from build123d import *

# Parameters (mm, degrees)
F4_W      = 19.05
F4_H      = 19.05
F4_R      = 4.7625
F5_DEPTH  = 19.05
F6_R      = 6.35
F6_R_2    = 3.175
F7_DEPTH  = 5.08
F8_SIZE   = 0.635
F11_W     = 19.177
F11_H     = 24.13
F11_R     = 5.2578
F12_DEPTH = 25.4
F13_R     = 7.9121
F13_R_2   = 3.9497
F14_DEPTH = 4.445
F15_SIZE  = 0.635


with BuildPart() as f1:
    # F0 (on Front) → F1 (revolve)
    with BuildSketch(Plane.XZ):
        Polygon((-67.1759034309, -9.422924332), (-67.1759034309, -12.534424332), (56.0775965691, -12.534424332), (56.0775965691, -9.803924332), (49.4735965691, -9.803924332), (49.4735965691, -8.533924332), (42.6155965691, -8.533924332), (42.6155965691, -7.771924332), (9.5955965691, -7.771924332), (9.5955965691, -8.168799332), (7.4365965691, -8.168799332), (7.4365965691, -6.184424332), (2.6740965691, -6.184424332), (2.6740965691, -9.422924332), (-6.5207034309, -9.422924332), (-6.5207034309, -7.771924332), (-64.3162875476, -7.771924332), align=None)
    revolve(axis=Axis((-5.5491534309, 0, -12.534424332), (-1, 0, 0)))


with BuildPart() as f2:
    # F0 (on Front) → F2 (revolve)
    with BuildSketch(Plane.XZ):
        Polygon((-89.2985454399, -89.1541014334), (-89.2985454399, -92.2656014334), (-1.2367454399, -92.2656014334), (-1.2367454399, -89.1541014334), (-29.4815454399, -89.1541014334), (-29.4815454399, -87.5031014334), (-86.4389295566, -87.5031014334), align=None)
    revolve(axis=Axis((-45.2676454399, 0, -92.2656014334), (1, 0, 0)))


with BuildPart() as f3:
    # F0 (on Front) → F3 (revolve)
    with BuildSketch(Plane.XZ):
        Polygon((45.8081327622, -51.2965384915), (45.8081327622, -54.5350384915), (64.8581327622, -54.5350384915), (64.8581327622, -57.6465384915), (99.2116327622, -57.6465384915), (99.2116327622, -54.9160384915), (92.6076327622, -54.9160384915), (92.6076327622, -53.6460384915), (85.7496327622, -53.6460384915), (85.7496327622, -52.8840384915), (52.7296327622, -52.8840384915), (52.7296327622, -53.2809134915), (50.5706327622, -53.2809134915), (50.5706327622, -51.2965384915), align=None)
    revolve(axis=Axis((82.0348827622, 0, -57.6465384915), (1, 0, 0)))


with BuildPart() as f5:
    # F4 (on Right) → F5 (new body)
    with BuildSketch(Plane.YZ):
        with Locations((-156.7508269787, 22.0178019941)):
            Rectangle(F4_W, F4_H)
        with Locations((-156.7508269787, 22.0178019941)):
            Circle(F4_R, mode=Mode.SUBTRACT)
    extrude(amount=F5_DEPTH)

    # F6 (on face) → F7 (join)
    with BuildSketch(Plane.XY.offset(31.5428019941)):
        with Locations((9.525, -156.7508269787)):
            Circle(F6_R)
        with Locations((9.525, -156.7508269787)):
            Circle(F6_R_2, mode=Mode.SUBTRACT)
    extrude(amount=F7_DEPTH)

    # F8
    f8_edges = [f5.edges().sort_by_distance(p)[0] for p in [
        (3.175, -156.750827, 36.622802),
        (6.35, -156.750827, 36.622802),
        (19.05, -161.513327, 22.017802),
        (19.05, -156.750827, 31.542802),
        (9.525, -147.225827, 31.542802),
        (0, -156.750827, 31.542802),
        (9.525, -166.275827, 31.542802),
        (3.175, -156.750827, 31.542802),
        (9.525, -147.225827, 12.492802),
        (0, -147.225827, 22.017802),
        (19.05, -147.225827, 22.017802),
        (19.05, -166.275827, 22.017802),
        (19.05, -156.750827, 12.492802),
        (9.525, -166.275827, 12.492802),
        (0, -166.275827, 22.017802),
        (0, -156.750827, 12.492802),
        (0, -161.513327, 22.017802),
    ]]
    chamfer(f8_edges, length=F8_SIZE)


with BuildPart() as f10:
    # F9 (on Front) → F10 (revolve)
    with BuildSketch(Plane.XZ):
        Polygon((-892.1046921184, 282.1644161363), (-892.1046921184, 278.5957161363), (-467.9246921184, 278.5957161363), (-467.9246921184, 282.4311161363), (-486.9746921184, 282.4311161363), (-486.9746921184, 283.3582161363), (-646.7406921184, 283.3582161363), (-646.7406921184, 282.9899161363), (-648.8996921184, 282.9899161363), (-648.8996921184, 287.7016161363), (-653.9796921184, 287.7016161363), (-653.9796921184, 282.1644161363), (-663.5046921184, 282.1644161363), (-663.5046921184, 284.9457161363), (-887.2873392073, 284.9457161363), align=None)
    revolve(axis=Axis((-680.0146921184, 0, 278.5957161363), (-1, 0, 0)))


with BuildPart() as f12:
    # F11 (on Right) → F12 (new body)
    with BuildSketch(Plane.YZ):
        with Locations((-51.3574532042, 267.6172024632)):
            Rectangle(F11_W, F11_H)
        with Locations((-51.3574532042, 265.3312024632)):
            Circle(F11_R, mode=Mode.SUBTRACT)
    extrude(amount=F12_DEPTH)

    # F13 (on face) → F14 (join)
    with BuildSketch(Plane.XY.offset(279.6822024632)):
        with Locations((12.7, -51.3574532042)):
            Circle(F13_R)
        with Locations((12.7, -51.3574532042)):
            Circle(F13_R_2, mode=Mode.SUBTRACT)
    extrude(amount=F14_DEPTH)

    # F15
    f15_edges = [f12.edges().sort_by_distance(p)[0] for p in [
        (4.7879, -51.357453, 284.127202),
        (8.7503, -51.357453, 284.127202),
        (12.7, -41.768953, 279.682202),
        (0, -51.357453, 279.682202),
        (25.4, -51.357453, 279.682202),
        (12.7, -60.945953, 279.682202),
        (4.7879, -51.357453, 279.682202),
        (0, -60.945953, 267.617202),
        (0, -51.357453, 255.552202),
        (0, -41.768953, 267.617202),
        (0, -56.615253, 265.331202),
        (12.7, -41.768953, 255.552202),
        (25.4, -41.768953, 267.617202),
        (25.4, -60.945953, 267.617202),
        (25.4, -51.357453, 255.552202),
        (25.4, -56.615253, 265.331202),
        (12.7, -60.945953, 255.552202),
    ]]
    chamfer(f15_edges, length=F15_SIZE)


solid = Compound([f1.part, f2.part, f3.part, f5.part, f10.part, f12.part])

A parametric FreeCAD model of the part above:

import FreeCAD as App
import Part
import Sketcher
Q = App.Units.Quantity


def edges_at(feature, points):
    """Names of the edges that pass closest to the given points."""
    edges = feature.Shape.Edges
    near = lambda p: min(range(len(edges)), key=lambda i: edges[i].distToShape(Part.Vertex(*p))[0])
    return sorted({f"Edge{near(p) + 1}" for p in points})


def add_polygon(sketch, points):
    """Adds a closed chain of lines whose ends are joined by coincident constraints."""
    first, n = sketch.GeometryCount, len(points)
    for a, b in zip(points, points[1:] + points[:1]):
        sketch.addGeometry(Part.LineSegment(App.Vector(*a, 0), App.Vector(*b, 0)), False)
    for i in range(n):
        sketch.addConstraint(Sketcher.Constraint("Coincident", first + i, 2, first + (i + 1) % n, 1))

doc = App.newDocument("Part")
body = doc.addObject("PartDesign::Body", "Body")

sketch1 = body.newObject("Sketcher::SketchObject", "Sketch")
sketch1.AttachmentSupport = (doc.getObject("XZ_Plane"), [""])
sketch1.MapMode = "FlatFace"
add_polygon(sketch1, [(-67.18, -9.42), (-67.18, -12.53), (56.08, -12.53), (56.08, -9.8), (49.47, -9.8), (49.47, -8.53), (42.62, -8.53), (42.62, -7.77), (9.6, -7.77), (9.6, -8.17), (7.44, -8.17), (7.44, -6.18), (2.67, -6.18), (2.67, -9.42), (-6.52, -9.42), (-6.52, -7.77), (-64.32, -7.77)])
sketch1.addGeometry(Part.LineSegment(App.Vector(56.08, -12.53, 0), App.Vector(-67.18, -12.53, 0)), True)
sketch1.addConstraint(Sketcher.Constraint("Vertical", 0))
sketch1.addConstraint(Sketcher.Constraint("Horizontal", 1))
sketch1.addConstraint(Sketcher.Constraint("Vertical", 2))
sketch1.addConstraint(Sketcher.Constraint("Horizontal", 3))
sketch1.addConstraint(Sketcher.Constraint("Vertical", 4))
sketch1.addConstraint(Sketcher.Constraint("Horizontal", 5))
sketch1.addConstraint(Sketcher.Constraint("Vertical", 6))
sketch1.addConstraint(Sketcher.Constraint("Horizontal", 7))
sketch1.addConstraint(Sketcher.Constraint("Vertical", 8))
sketch1.addConstraint(Sketcher.Constraint("Horizontal", 9))
sketch1.addConstraint(Sketcher.Constraint("Vertical", 10))
sketch1.addConstraint(Sketcher.Constraint("Horizontal", 11))
sketch1.addConstraint(Sketcher.Constraint("Vertical", 12))
sketch1.addConstraint(Sketcher.Constraint("Horizontal", 13))
sketch1.addConstraint(Sketcher.Constraint("Vertical", 14))
sketch1.addConstraint(Sketcher.Constraint("Horizontal", 15))
sketch1.addConstraint(Sketcher.Constraint("Horizontal", 17))
sketch1.addConstraint(Sketcher.Constraint("Coincident", 17, 1, 1, 2))
sketch1.addConstraint(Sketcher.Constraint("Horizontal", 7, 2, 14, 2))
sketch1.addConstraint(Sketcher.Constraint("Horizontal", 13, 2, 16, 2))
sketch1.addConstraint(Sketcher.Constraint("Vertical", 16, 2, 17, 2))
sketch1.addConstraint(Sketcher.Constraint("DistanceX", 7, 2, 7, 1, Q("1.3 in")))
sketch1.addConstraint(Sketcher.Constraint("Angle", 16, Q("-150 deg")))
sketch1.addConstraint(Sketcher.Constraint("DistanceX", 3, 2, 3, 1, Q("0.26 in")))
sketch1.addConstraint(Sketcher.Constraint("DistanceX", 5, 2, 5, 1, Q("0.27 in")))
sketch1.addConstraint(Sketcher.Constraint("DistanceY", 4, 1, 4, 2, Q("0.05 in")))
sketch1.addConstraint(Sketcher.Constraint("DistanceY", 6, 1, 6, 2, Q("0.03 in")))
sketch1.addConstraint(Sketcher.Constraint("Distance", 16, Q("0.13 in")))
sketch1.addConstraint(Sketcher.Constraint("DistanceX", 9, 2, 9, 1, Q("0.085 in")))
sketch1.addConstraint(Sketcher.Constraint("DistanceX", 11, 2, 11, 1, Q("0.1875 in")))
sketch1.addConstraint(Sketcher.Constraint("DistanceX", 13, 2, 13, 1, Q("0.362 in")))
sketch1.addConstraint(Sketcher.Constraint("DistanceY", 8, 2, 8, 1, Q("0.015625 in")))
sketch1.addConstraint(Sketcher.Constraint("DistanceY", 10, 1, 10, 2, Q("0.078125 in")))
sketch1.addConstraint(Sketcher.Constraint("DistanceX", 16, 2, 12, 2, Q("2.75 in")))
sketch1.addConstraint(Sketcher.Constraint("DistanceY", 0, 2, 0, 1, Q("0.1225 in")))
sketch1.addConstraint(Sketcher.Constraint("DistanceY", 8, 2, -1, 1, Q("8.168799 mm")))
sketch1.addConstraint(Sketcher.Constraint("DistanceX", 0, 2, -1, 1, Q("67.175903 mm")))
revolution = body.newObject("PartDesign::Revolution", "Revolution")
revolution.Profile = sketch1
revolution.ReferenceAxis = (sketch1, ["Axis0"])
revolution.Angle = 360
body2 = doc.addObject("PartDesign::Body", "Body001")

sketch2 = body2.newObject("Sketcher::SketchObject", "Sketch001")
sketch2.AttachmentSupport = (doc.getObject("XZ_Plane001"), [""])
sketch2.MapMode = "FlatFace"
add_polygon(sketch2, [(-89.3, -89.2), (-89.3, -92.3), (-1.2, -92.3), (-1.2, -89.2), (-29.5, -89.2), (-29.5, -87.5), (-86.4, -87.5)])
sketch2.addGeometry(Part.LineSegment(App.Vector(-89.3, -92.3, 0), App.Vector(-1.2, -92.3, 0)), True)
sketch2.addConstraint(Sketcher.Constraint("Vertical", 0))
sketch2.addConstraint(Sketcher.Constraint("Horizontal", 1))
sketch2.addConstraint(Sketcher.Constraint("Vertical", 2))
sketch2.addConstraint(Sketcher.Constraint("Horizontal", 3))
sketch2.addConstraint(Sketcher.Constraint("Vertical", 4))
sketch2.addConstraint(Sketcher.Constraint("Horizontal", 5))
sketch2.addConstraint(Sketcher.Constraint("Horizontal", 7))
sketch2.addConstraint(Sketcher.Constraint("Coincident", 7, 1, 0, 2))
sketch2.addConstraint(Sketcher.Constraint("Horizontal", 3, 2, 6, 2))
sketch2.addConstraint(Sketcher.Constraint("Vertical", 2, 2, 7, 2))
sketch2.addConstraint(Sketcher.Constraint("Angle", 6, Q("-150 deg")))
sketch2.addConstraint(Sketcher.Constraint("Distance", 6, Q("0.13 in")))
sketch2.addConstraint(Sketcher.Constraint("DistanceX", 1, 1, 1, 2, Q("3.467 in")))
sketch2.addConstraint(Sketcher.Constraint("DistanceX", 3, 2, 3, 1, Q("1.112 in")))
sketch2.addConstraint(Sketcher.Constraint("DistanceY", 0, 2, 0, 1, Q("0.1225 in")))
sketch2.addConstraint(Sketcher.Constraint("DistanceY", 0, 2, -1, 1, Q("92.265601 mm")))
sketch2.addConstraint(Sketcher.Constraint("DistanceX", 5, 2, -1, 1, Q("86.43893 mm")))
revolution2 = body2.newObject("PartDesign::Revolution", "Revolution001")
revolution2.Profile = sketch2
revolution2.ReferenceAxis = (sketch2, ["Axis0"])
revolution2.Angle = 360
body3 = doc.addObject("PartDesign::Body", "Body002")

sketch3 = body3.newObject("Sketcher::SketchObject", "Sketch002")
sketch3.AttachmentSupport = (doc.getObject("XZ_Plane002"), [""])
sketch3.MapMode = "FlatFace"
add_polygon(sketch3, [(45.81, -51.3), (45.81, -54.54), (64.86, -54.54), (64.86, -57.65), (99.21, -57.65), (99.21, -54.92), (92.61, -54.92), (92.61, -53.65), (85.75, -53.65), (85.75, -52.88), (52.73, -52.88), (52.73, -53.28), (50.57, -53.28), (50.57, -51.3)])
sketch3.addGeometry(Part.LineSegment(App.Vector(45.81, -57.65, 0), App.Vector(99.21, -57.65, 0)), True)
sketch3.addConstraint(Sketcher.Constraint("Vertical", 0))
sketch3.addConstraint(Sketcher.Constraint("Horizontal", 1))
sketch3.addConstraint(Sketcher.Constraint("Vertical", 2))
sketch3.addConstraint(Sketcher.Constraint("Horizontal", 3))
sketch3.addConstraint(Sketcher.Constraint("Vertical", 4))
sketch3.addConstraint(Sketcher.Constraint("Horizontal", 5))
sketch3.addConstraint(Sketcher.Constraint("Vertical", 6))
sketch3.addConstraint(Sketcher.Constraint("Horizontal", 7))
sketch3.addConstraint(Sketcher.Constraint("Vertical", 8))
sketch3.addConstraint(Sketcher.Constraint("Horizontal", 9))
sketch3.addConstraint(Sketcher.Constraint("Vertical", 10))
sketch3.addConstraint(Sketcher.Constraint("Horizontal", 11))
sketch3.addConstraint(Sketcher.Constraint("Vertical", 12))
sketch3.addConstraint(Sketcher.Constraint("Horizontal", 13))
sketch3.addConstraint(Sketcher.Constraint("Horizontal", 14))
sketch3.addConstraint(Sketcher.Constraint("Coincident", 14, 2, 3, 2))
sketch3.addConstraint(Sketcher.Constraint("Vertical", 13, 2, 14, 1))
sketch3.addConstraint(Sketcher.Constraint("DistanceX", 9, 2, 9, 1, Q("1.3 in")))
sketch3.addConstraint(Sketcher.Constraint("DistanceX", 1, 1, 1, 2, Q("0.75 in")))
sketch3.addConstraint(Sketcher.Constraint("DistanceX", 5, 2, 5, 1, Q("0.26 in")))
sketch3.addConstraint(Sketcher.Constraint("DistanceX", 7, 2, 7, 1, Q("0.27 in")))
sketch3.addConstraint(Sketcher.Constraint("DistanceY", 6, 1, 6, 2, Q("0.05 in")))
sketch3.addConstraint(Sketcher.Constraint("DistanceY", 8, 1, 8, 2, Q("0.03 in")))
sketch3.addConstraint(Sketcher.Constraint("DistanceX", 11, 2, 11, 1, Q("0.085 in")))
sketch3.addConstraint(Sketcher.Constraint("DistanceX", 13, 2, 13, 1, Q("0.1875 in")))
sketch3.addConstraint(Sketcher.Constraint("DistanceY", 10, 2, 10, 1, Q("0.015625 in")))
sketch3.addConstraint(Sketcher.Constraint("DistanceY", 12, 1, 12, 2, Q("0.078125 in")))
sketch3.addConstraint(Sketcher.Constraint("DistanceY", 14, 1, 13, 2, Q("0.25 in")))
sketch3.addConstraint(Sketcher.Constraint("DistanceY", 0, 2, 0, 1, Q("0.1275 in")))
sketch3.addConstraint(Sketcher.Constraint("DistanceY", 0, 2, -1, 1, Q("54.535038 mm")))
sketch3.addConstraint(Sketcher.Constraint("DistanceX", -1, 1, 0, 2, Q("45.808133 mm")))
revolution3 = body3.newObject("PartDesign::Revolution", "Revolution002")
revolution3.Profile = sketch3
revolution3.ReferenceAxis = (sketch3, ["Axis0"])
revolution3.Angle = 360
body4 = doc.addObject("PartDesign::Body", "Body003")

sketch4 = body4.newObject("Sketcher::SketchObject", "Sketch003")
sketch4.AttachmentSupport = (doc.getObject("YZ_Plane003"), [""])
sketch4.MapMode = "FlatFace"
add_polygon(sketch4, [(-166.3, 31.5), (-166.3, 12.5), (-147.2, 12.5), (-147.2, 31.5)])
sketch4.addGeometry(Part.Circle(App.Vector(-156.8, 22, 0), App.Vector(0, 0, 1), 4.8), False)
sketch4.addConstraint(Sketcher.Constraint("Vertical", 0))
sketch4.addConstraint(Sketcher.Constraint("Horizontal", 1))
sketch4.addConstraint(Sketcher.Constraint("Vertical", 2))
sketch4.addConstraint(Sketcher.Constraint("Horizontal", 3))
sketch4.addConstraint(Sketcher.Constraint("Equal", 3, 0))
sketch4.addConstraint(Sketcher.Constraint("Diameter", 4, Q("0.375 in")))
sketch4.addConstraint(Sketcher.Constraint("DistanceX", 1, 1, 1, 2, Q("0.75 in")))
sketch4.addConstraint(Sketcher.Constraint("DistanceX", 0, 2, 4, 3, Q("0.375 in")))
sketch4.addConstraint(Sketcher.Constraint("DistanceY", 0, 2, 4, 3, Q("0.375 in")))
sketch4.addConstraint(Sketcher.Constraint("DistanceY", -1, 1, 4, 3, Q("22.017802 mm")))
sketch4.addConstraint(Sketcher.Constraint("DistanceX", 4, 3, -1, 1, Q("156.750827 mm")))
pad1 = body4.newObject("PartDesign::Pad", "Pad")
pad1.Profile = sketch4
pad1.Length = Q("0.75 in")

sketch5 = body4.newObject("Sketcher::SketchObject", "Sketch004")
sketch5.AttachmentSupport = (doc.getObject("XY_Plane003"), [""])
sketch5.MapMode = "FlatFace"
sketch5.AttachmentOffset = App.Placement(App.Vector(0, 0, 31.542802), App.Rotation())
sketch5.addGeometry(Part.Circle(App.Vector(9.5, -156.8, 0), App.Vector(0, 0, 1), 6.3), False)
sketch5.addGeometry(Part.Circle(App.Vector(9.5, -156.8, 0), App.Vector(0, 0, 1), 3.2), False)
sketch5.addConstraint(Sketcher.Constraint("Coincident", 1, 3, 0, 3))
sketch5.addConstraint(Sketcher.Constraint("Diameter", 0, Q("0.5 in")))
sketch5.addConstraint(Sketcher.Constraint("Diameter", 1, Q("0.25 in")))
sketch5.addConstraint(Sketcher.Constraint("DistanceX", -1, 1, 0, 3, Q("0.375 in")))
sketch5.addConstraint(Sketcher.Constraint("DistanceY", 0, 3, -1, 1, Q("156.750827 mm")))
pad2 = body4.newObject("PartDesign::Pad", "Pad001")
pad2.Profile = sketch5
pad2.Length = Q("0.2 in")
doc.recompute()

chamfer = body4.newObject("PartDesign::Chamfer", "Chamfer")
chamfer.Base = (pad2, edges_at(pad2, [
    (3.175, -156.751, 36.623),
    (6.35, -156.751, 36.623),
    (19.05, -161.513, 22.018),
    (19.05, -156.751, 31.543),
    (9.525, -147.226, 31.543),
    (0, -156.751, 31.543),
    (9.525, -166.276, 31.543),
    (3.175, -156.751, 31.543),
    (9.525, -147.226, 12.493),
    (0, -147.226, 22.018),
    (19.05, -147.226, 22.018),
    (19.05, -166.276, 22.018),
    (19.05, -156.751, 12.493),
    (9.525, -166.276, 12.493),
    (0, -166.276, 22.018),
    (0, -156.751, 12.493),
    (0, -161.513, 22.018),
]))
chamfer.Size = Q("0.025 in")
body5 = doc.addObject("PartDesign::Body", "Body004")

sketch6 = body5.newObject("Sketcher::SketchObject", "Sketch005")
sketch6.AttachmentSupport = (doc.getObject("XZ_Plane004"), [""])
sketch6.MapMode = "FlatFace"
add_polygon(sketch6, [(-892.1, 282.16), (-892.1, 278.6), (-467.92, 278.6), (-467.92, 282.43), (-486.97, 282.43), (-486.97, 283.36), (-646.74, 283.36), (-646.74, 282.99), (-648.9, 282.99), (-648.9, 287.7), (-653.98, 287.7), (-653.98, 282.16), (-663.5, 282.16), (-663.5, 284.95), (-887.29, 284.95)])
sketch6.addGeometry(Part.LineSegment(App.Vector(-467.92, 278.6, 0), App.Vector(-892.1, 278.6, 0)), True)
sketch6.addConstraint(Sketcher.Constraint("Vertical", 0))
sketch6.addConstraint(Sketcher.Constraint("Horizontal", 1))
sketch6.addConstraint(Sketcher.Constraint("Vertical", 2))
sketch6.addConstraint(Sketcher.Constraint("Horizontal", 3))
sketch6.addConstraint(Sketcher.Constraint("Vertical", 4))
sketch6.addConstraint(Sketcher.Constraint("Horizontal", 5))
sketch6.addConstraint(Sketcher.Constraint("Vertical", 6))
sketch6.addConstraint(Sketcher.Constraint("Horizontal", 7))
sketch6.addConstraint(Sketcher.Constraint("Vertical", 8))
sketch6.addConstraint(Sketcher.Constraint("Horizontal", 9))
sketch6.addConstraint(Sketcher.Constraint("Vertical", 10))
sketch6.addConstraint(Sketcher.Constraint("Horizontal", 11))
sketch6.addConstraint(Sketcher.Constraint("Vertical", 12))
sketch6.addConstraint(Sketcher.Constraint("Horizontal", 13))
sketch6.addConstraint(Sketcher.Constraint("Horizontal", 15))
sketch6.addConstraint(Sketcher.Constraint("Coincident", 15, 1, 1, 2))
sketch6.addConstraint(Sketcher.Constraint("Horizontal", 11, 2, 14, 2))
sketch6.addConstraint(Sketcher.Constraint("Vertical", 14, 2, 15, 2))
sketch6.addConstraint(Sketcher.Constraint("DistanceX", 1, 1, 1, 2, Q("16.7 in")))
sketch6.addConstraint(Sketcher.Constraint("DistanceX", 9, 2, 9, 1, Q("0.2 in")))
sketch6.addConstraint(Sketcher.Constraint("Angle", 14, Q("-150 deg")))
sketch6.addConstraint(Sketcher.Constraint("DistanceX", 14, 2, 11, 2, Q("9 in")))
sketch6.addConstraint(Sketcher.Constraint("DistanceX", 3, 2, 3, 1, Q("0.75 in")))
sketch6.addConstraint(Sketcher.Constraint("DistanceX", 5, 2, 5, 1, Q("6.29 in")))
sketch6.addConstraint(Sketcher.Constraint("DistanceX", 7, 2, 7, 1, Q("0.085 in")))
sketch6.addConstraint(Sketcher.Constraint("DistanceY", 2, 1, 2, 2, Q("0.151 in")))
sketch6.addConstraint(Sketcher.Constraint("DistanceY", 10, 2, 10, 1, Q("0.218 in")))
sketch6.addConstraint(Sketcher.Constraint("DistanceY", 0, 2, 13, 2, Q("0.25 in")))
sketch6.addConstraint(Sketcher.Constraint("Distance", 14, Q("0.219 in")))
sketch6.addConstraint(Sketcher.Constraint("DistanceY", 4, 1, 4, 2, Q("0.0365 in")))
sketch6.addConstraint(Sketcher.Constraint("DistanceY", 6, 2, 6, 1, Q("0.0145 in")))
sketch6.addConstraint(Sketcher.Constraint("DistanceX", 13, 2, -1, 1, Q("887.287339 mm")))
sketch6.addConstraint(Sketcher.Constraint("DistanceY", -1, 1, 0, 2, Q("278.595716 mm")))
revolution4 = body5.newObject("PartDesign::Revolution", "Revolution003")
revolution4.Profile = sketch6
revolution4.ReferenceAxis = (sketch6, ["Axis0"])
revolution4.Angle = 360
body6 = doc.addObject("PartDesign::Body", "Body005")

sketch7 = body6.newObject("Sketcher::SketchObject", "Sketch006")
sketch7.AttachmentSupport = (doc.getObject("YZ_Plane005"), [""])
sketch7.MapMode = "FlatFace"
add_polygon(sketch7, [(-61, 280), (-61, 256), (-42, 256), (-42, 280)])
sketch7.addGeometry(Part.Circle(App.Vector(-51, 265, 0), App.Vector(0, 0, 1), 5), False)
sketch7.addConstraint(Sketcher.Constraint("Vertical", 0))
sketch7.addConstraint(Sketcher.Constraint("Horizontal", 1))
sketch7.addConstraint(Sketcher.Constraint("Vertical", 2))
sketch7.addConstraint(Sketcher.Constraint("Horizontal", 3))
sketch7.addConstraint(Sketcher.Constraint("Diameter", 4, Q("0.414 in")))
sketch7.addConstraint(Sketcher.Constraint("DistanceY", 0, 2, 0, 1, Q("0.95 in")))
sketch7.addConstraint(Sketcher.Constraint("DistanceX", 1, 1, 1, 2, Q("0.755 in")))
sketch7.addConstraint(Sketcher.Constraint("DistanceY", 0, 2, 4, 3, Q("0.385 in")))
sketch7.addConstraint(Sketcher.Constraint("DistanceX", 0, 2, 4, 3, Q("0.3775 in")))
sketch7.addConstraint(Sketcher.Constraint("DistanceX", 4, 3, -1, 1, Q("51.357453 mm")))
sketch7.addConstraint(Sketcher.Constraint("DistanceY", -1, 1, 4, 3, Q("265.331202 mm")))
pad3 = body6.newObject("PartDesign::Pad", "Pad002")
pad3.Profile = sketch7
pad3.Length = Q("1 in")

sketch8 = body6.newObject("Sketcher::SketchObject", "Sketch007")
sketch8.AttachmentSupport = (doc.getObject("XY_Plane005"), [""])
sketch8.MapMode = "FlatFace"
sketch8.AttachmentOffset = App.Placement(App.Vector(0, 0, 279.682202), App.Rotation())
sketch8.addGeometry(Part.Circle(App.Vector(12.7, -51.4, 0), App.Vector(0, 0, 1), 7.9), False)
sketch8.addGeometry(Part.Circle(App.Vector(12.7, -51.4, 0), App.Vector(0, 0, 1), 3.9), False)
sketch8.addConstraint(Sketcher.Constraint("Coincident", 1, 3, 0, 3))
sketch8.addConstraint(Sketcher.Constraint("Diameter", 0, Q("0.623 in")))
sketch8.addConstraint(Sketcher.Constraint("Diameter", 1, Q("0.311 in")))
sketch8.addConstraint(Sketcher.Constraint("DistanceX", -1, 1, 0, 3, Q("0.5 in")))
sketch8.addConstraint(Sketcher.Constraint("DistanceY", 0, 3, -1, 1, Q("51.357453 mm")))
pad4 = body6.newObject("PartDesign::Pad", "Pad003")
pad4.Profile = sketch8
pad4.Length = Q("0.175 in")
doc.recompute()

chamfer2 = body6.newObject("PartDesign::Chamfer", "Chamfer001")
chamfer2.Base = (pad4, edges_at(pad4, [
    (4.788, -51.357, 284.127),
    (8.75, -51.357, 284.127),
    (12.7, -41.769, 279.682),
    (0, -51.357, 279.682),
    (25.4, -51.357, 279.682),
    (12.7, -60.946, 279.682),
    (4.788, -51.357, 279.682),
    (0, -60.946, 267.617),
    (0, -51.357, 255.552),
    (0, -41.769, 267.617),
    (0, -56.615, 265.331),
    (12.7, -41.769, 255.552),
    (25.4, -41.769, 267.617),
    (25.4, -60.946, 267.617),
    (25.4, -51.357, 255.552),
    (25.4, -56.615, 265.331),
    (12.7, -60.946, 255.552),
]))
chamfer2.Size = Q("0.025 in")

doc.recompute()
